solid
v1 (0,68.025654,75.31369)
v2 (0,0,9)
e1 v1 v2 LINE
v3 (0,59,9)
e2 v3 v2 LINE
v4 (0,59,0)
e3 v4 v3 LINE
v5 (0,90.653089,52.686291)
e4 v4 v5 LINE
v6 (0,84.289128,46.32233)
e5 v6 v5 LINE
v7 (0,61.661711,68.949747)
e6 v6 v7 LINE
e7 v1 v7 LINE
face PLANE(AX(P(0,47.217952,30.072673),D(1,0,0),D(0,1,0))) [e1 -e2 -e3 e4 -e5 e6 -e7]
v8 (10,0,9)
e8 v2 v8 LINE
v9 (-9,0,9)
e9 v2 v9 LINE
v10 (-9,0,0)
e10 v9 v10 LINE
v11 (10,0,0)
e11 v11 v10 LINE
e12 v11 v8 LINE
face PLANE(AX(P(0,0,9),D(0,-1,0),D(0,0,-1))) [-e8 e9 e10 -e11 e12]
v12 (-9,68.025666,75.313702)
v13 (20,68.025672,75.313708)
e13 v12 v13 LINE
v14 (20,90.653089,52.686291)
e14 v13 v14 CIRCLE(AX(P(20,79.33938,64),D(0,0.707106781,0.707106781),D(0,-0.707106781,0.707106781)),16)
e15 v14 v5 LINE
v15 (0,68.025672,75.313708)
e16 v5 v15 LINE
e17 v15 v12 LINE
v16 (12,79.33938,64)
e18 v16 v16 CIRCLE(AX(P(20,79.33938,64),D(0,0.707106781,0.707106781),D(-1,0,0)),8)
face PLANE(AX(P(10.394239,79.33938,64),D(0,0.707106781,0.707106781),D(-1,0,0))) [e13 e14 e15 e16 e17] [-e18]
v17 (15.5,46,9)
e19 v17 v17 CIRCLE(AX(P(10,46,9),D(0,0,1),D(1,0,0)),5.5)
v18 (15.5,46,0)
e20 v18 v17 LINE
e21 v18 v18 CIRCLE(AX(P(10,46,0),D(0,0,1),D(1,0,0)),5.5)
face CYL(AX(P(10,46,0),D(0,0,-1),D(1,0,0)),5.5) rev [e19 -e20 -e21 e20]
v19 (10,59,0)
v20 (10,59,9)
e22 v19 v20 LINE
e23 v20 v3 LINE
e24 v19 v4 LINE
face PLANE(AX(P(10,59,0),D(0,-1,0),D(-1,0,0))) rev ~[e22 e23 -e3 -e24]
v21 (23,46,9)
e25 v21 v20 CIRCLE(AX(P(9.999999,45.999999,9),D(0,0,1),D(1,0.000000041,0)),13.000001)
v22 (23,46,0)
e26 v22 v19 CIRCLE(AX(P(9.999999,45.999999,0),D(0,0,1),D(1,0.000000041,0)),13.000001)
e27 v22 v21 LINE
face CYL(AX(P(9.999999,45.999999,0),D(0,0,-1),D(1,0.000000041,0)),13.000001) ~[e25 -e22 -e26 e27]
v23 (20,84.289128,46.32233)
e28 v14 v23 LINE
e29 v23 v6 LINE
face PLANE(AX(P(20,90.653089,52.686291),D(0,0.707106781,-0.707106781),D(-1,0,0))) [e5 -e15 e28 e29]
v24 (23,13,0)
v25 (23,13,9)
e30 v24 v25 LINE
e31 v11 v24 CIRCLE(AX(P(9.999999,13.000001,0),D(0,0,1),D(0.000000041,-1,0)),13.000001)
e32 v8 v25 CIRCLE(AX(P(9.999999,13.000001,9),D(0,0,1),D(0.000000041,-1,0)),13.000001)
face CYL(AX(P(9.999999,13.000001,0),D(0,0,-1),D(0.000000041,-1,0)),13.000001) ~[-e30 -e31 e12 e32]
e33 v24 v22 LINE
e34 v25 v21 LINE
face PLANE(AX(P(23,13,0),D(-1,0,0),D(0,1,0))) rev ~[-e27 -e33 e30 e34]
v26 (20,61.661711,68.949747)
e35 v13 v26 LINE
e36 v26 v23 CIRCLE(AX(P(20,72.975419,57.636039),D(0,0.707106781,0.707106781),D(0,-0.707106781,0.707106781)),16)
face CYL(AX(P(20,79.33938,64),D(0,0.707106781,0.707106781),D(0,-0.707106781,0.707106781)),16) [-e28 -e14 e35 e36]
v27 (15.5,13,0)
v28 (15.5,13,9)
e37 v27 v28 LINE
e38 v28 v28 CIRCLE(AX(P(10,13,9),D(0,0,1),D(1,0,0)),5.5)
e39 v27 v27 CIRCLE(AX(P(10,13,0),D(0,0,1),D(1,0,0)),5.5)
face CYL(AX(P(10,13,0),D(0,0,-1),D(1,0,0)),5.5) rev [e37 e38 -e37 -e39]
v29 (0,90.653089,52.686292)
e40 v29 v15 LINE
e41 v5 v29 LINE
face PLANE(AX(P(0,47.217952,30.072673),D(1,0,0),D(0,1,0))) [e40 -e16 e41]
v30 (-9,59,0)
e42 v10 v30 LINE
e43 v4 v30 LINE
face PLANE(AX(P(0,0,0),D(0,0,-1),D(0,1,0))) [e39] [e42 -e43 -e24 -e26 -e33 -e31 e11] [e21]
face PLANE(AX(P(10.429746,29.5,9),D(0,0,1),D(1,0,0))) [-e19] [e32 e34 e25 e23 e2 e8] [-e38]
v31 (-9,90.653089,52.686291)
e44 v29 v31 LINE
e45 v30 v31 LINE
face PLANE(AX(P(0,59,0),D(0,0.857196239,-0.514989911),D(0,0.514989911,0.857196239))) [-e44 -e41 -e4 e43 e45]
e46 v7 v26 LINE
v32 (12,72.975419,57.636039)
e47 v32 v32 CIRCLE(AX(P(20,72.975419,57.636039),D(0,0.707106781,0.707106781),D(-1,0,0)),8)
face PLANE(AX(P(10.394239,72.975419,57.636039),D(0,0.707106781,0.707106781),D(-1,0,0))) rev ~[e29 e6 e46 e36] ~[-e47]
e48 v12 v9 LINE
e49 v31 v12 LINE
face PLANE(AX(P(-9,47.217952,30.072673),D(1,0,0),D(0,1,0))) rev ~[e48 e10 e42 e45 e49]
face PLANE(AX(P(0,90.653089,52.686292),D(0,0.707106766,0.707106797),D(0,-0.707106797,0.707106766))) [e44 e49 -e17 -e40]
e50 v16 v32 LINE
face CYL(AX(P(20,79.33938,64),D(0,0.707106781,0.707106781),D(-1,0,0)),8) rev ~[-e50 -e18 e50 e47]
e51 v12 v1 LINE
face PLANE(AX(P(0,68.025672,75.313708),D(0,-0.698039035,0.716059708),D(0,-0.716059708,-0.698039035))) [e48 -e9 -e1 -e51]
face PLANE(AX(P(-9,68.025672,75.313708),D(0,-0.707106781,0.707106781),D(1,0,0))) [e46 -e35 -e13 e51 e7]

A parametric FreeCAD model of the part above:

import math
import FreeCAD as App
import Part
import Sketcher
from FreeCAD import Vector
Q = App.Units.Quantity


def add_polygon(sketch, points):
    """Adds a closed chain of lines whose ends are joined by coincident constraints."""
    first, n = sketch.GeometryCount, len(points)
    for a, b in zip(points, points[1:] + points[:1]):
        sketch.addGeometry(Part.LineSegment(App.Vector(*a, 0), App.Vector(*b, 0)), False)
    for i in range(n):
        sketch.addConstraint(Sketcher.Constraint("Coincident", first + i, 2, first + (i + 1) % n, 1))

doc = App.newDocument("Part")
params = doc.addObject("Spreadsheet::Sheet", "Params")
for row, (alias, value) in enumerate([
    ("sketch1_diameter", "11 mm"),
    ("sketch1_radius", "13.000001 mm"),
    ("sketch1_width", "10 mm"),
    ("sketch1_height", "59 mm"),
    ("pad1_length", "9 mm"),
    ("sketch2_width", "59 mm"),
    ("sketch2_height", "9 mm"),
    ("sketch2_length", "31.999999 mm"),
    ("sketch2_length2", "95 mm"),
    ("pad2_length", "9 mm"),
    ("sketch3_diameter", "16 mm"),
    ("sketch3_radius", "16 mm"),
    ("sketch3_width", "29 mm"),
    ("pad3_length", "9 mm"),
], start=1):
    params.set(f"A{row}", alias)
    params.set(f"B{row}", "=" + value)
    params.setAlias(f"B{row}", alias)

body = doc.addObject("PartDesign::Body", "Body")

# Sketch on XY plane
sketch1 = body.newObject("Sketcher::SketchObject", "Sketch")
sketch1.AttachmentSupport = (doc.getObject("XY_Plane"), [""])
sketch1.MapMode = "FlatFace"
sketch1.addGeometry(Part.LineSegment(Vector(0, 59, 0), Vector(0, 0, 0)), False)
sketch1.addGeometry(Part.LineSegment(Vector(0, 0, 0), Vector(10, 0, 0)), False)
sketch1.addGeometry(Part.ArcOfCircle(Part.Circle(Vector(9.999999, 13.000001, 0), Vector(0, 0, 1), 13.000001), math.radians(-89.999998), math.radians(-0.000002)), False)
sketch1.addGeometry(Part.LineSegment(Vector(23, 13, 0), Vector(23, 46, 0)), False)
sketch1.addGeometry(Part.ArcOfCircle(Part.Circle(Vector(9.999999, 45.999999, 0), Vector(0, 0, 1), 13.000001), math.radians(0.000002), math.radians(89.999998)), False)
sketch1.addGeometry(Part.LineSegment(Vector(10, 59, 0), Vector(0, 59, 0)), False)
sketch1.addGeometry(Part.Circle(Vector(10, 13, 0), Vector(0, 0, 1), 5.5), False)
sketch1.addGeometry(Part.Circle(Vector(10, 46, 0), Vector(0, 0, 1), 5.5), False)
sketch1.addConstraint(Sketcher.Constraint("Coincident", 0, 2, 1, 1))
sketch1.addConstraint(Sketcher.Constraint("Tangent", 1, 2, 2, 1))
sketch1.addConstraint(Sketcher.Constraint("Tangent", 2, 2, 3, 1))
sketch1.addConstraint(Sketcher.Constraint("Tangent", 3, 2, 4, 1))
sketch1.addConstraint(Sketcher.Constraint("Tangent", 4, 2, 5, 1))
sketch1.addConstraint(Sketcher.Constraint("Coincident", 5, 2, 0, 1))
sketch1.addConstraint(Sketcher.Constraint("Vertical", 0))
sketch1.addConstraint(Sketcher.Constraint("Horizontal", 1))
sketch1.addConstraint(Sketcher.Constraint("Vertical", 3))
sketch1.addConstraint(Sketcher.Constraint("Horizontal", 5))
sketch1.addConstraint(Sketcher.Constraint("Coincident", 0, 2, -1, 1))
sketch1.addConstraint(Sketcher.Constraint("Coincident", 6, 3, 2, 3))
sketch1.addConstraint(Sketcher.Constraint("Coincident", 7, 3, 4, 3))
sketch1.addConstraint(Sketcher.Constraint("Equal", 2, 4))
sketch1.addConstraint(Sketcher.Constraint("Equal", 6, 7))
sketch1.addConstraint(Sketcher.Constraint("Diameter", 6, Q("11 mm")))
sketch1.addConstraint(Sketcher.Constraint("Radius", 2, Q("13.000001 mm")))
sketch1.addConstraint(Sketcher.Constraint("DistanceX", 1, 1, 1, 2, Q("10 mm")))
sketch1.addConstraint(Sketcher.Constraint("DistanceY", 0, 2, 0, 1, Q("59 mm")))
sketch1.setExpression("Constraints[15]", "Params.sketch1_diameter")
sketch1.setExpression("Constraints[16]", "Params.sketch1_radius")
sketch1.setExpression("Constraints[17]", "Params.sketch1_width")
sketch1.setExpression("Constraints[18]", "Params.sketch1_height")
pad1 = body.newObject("PartDesign::Pad", "Pad")
pad1.Profile = sketch1
pad1.setExpression("Length", "Params.pad1_length")

# Sketch on YZ plane
sketch2 = body.newObject("Sketcher::SketchObject", "Sketch001")
sketch2.AttachmentSupport = (doc.getObject("YZ_Plane"), [""])
sketch2.MapMode = "FlatFace"
add_polygon(sketch2, [(90.653089, 52.686292), (68.025672, 75.313708), (0, 9), (0, 0), (59, 0)])  # lines 0-4
sketch2.addConstraint(Sketcher.Constraint("Vertical", 2))
sketch2.addConstraint(Sketcher.Constraint("Horizontal", 3))
sketch2.addConstraint(Sketcher.Constraint("Coincident", 2, 2, -1, 1))
sketch2.addConstraint(Sketcher.Constraint("DistanceX", 3, 1, 3, 2, Q("59 mm")))
sketch2.addConstraint(Sketcher.Constraint("DistanceY", 2, 2, 2, 1, Q("9 mm")))
sketch2.addConstraint(Sketcher.Constraint("Angle", 0, Q("135.000001 deg")))
sketch2.addConstraint(Sketcher.Constraint("Distance", 0, Q("31.999999 mm")))
sketch2.addConstraint(Sketcher.Constraint("Distance", 1, Q("95 mm")))
sketch2.addConstraint(Sketcher.Constraint("DistanceX", -1, 1, 0, 2, Q("68.025672 mm")))
sketch2.setExpression("Constraints[8]", "Params.sketch2_width")
sketch2.setExpression("Constraints[9]", "Params.sketch2_height")
sketch2.setExpression("Constraints[11]", "Params.sketch2_length")
sketch2.setExpression("Constraints[12]", "Params.sketch2_length2")
pad2 = body.newObject("PartDesign::Pad", "Pad001")
pad2.Profile = sketch2
pad2.setExpression("Length", "Params.pad2_length")
pad2.Reversed = True

# Sketch on an angled plane
sketch3 = body.newObject("Sketcher::SketchObject", "Sketch002")
sketch3.Placement = App.Placement(Vector(0, 71.66969, 71.66969), App.Rotation(Vector(-1, 0, 0), Vector(0, -0.707106781, 0.707106781), Vector(0, 0.707106781, 0.707106781), "ZXY"))
sketch3.addGeometry(Part.LineSegment(Vector(9, -26.84658, 0), Vector(9, 5.15342, 0)), False)
sketch3.addGeometry(Part.LineSegment(Vector(9, 5.15342, 0), Vector(-20, 5.15342, 0)), False)
sketch3.addGeometry(Part.ArcOfCircle(Part.Circle(Vector(-20, -10.84658, 0), Vector(0, 0, 1), 16), math.radians(90), math.radians(270)), False)
sketch3.addGeometry(Part.LineSegment(Vector(-20, -26.84658, 0), Vector(9, -26.84658, 0)), False)
sketch3.addGeometry(Part.Circle(Vector(-20, -10.84658, 0), Vector(0, 0, 1), 8), False)
sketch3.addConstraint(Sketcher.Constraint("Coincident", 0, 2, 1, 1))
sketch3.addConstraint(Sketcher.Constraint("Tangent", 1, 2, 2, 1))
sketch3.addConstraint(Sketcher.Constraint("Tangent", 2, 2, 3, 1))
sketch3.addConstraint(Sketcher.Constraint("Coincident", 3, 2, 0, 1))
sketch3.addConstraint(Sketcher.Constraint("Vertical", 0))
sketch3.addConstraint(Sketcher.Constraint("Horizontal", 1))
sketch3.addConstraint(Sketcher.Constraint("Horizontal", 3))
sketch3.addConstraint(Sketcher.Constraint("Coincident", 4, 3, 2, 3))
sketch3.addConstraint(Sketcher.Constraint("Diameter", 4, Q("16 mm")))
sketch3.addConstraint(Sketcher.Constraint("Radius", 2, Q("16 mm")))
sketch3.addConstraint(Sketcher.Constraint("DistanceX", 1, 2, 1, 1, Q("29 mm")))
sketch3.addConstraint(Sketcher.Constraint("DistanceX", 2, 3, -1, 1, Q("20 mm")))
sketch3.addConstraint(Sketcher.Constraint("DistanceY", 2, 3, -1, 1, Q("10.84658 mm")))
sketch3.setExpression("Constraints[8]", "Params.sketch3_diameter")
sketch3.setExpression("Constraints[9]", "Params.sketch3_radius")
sketch3.setExpression("Constraints[10]", "Params.sketch3_width")
pad3 = body.newObject("PartDesign::Pad", "Pad002")
pad3.Profile = sketch3
pad3.setExpression("Length", "Params.pad3_length")
pad3.Reversed = True

doc.recompute()
